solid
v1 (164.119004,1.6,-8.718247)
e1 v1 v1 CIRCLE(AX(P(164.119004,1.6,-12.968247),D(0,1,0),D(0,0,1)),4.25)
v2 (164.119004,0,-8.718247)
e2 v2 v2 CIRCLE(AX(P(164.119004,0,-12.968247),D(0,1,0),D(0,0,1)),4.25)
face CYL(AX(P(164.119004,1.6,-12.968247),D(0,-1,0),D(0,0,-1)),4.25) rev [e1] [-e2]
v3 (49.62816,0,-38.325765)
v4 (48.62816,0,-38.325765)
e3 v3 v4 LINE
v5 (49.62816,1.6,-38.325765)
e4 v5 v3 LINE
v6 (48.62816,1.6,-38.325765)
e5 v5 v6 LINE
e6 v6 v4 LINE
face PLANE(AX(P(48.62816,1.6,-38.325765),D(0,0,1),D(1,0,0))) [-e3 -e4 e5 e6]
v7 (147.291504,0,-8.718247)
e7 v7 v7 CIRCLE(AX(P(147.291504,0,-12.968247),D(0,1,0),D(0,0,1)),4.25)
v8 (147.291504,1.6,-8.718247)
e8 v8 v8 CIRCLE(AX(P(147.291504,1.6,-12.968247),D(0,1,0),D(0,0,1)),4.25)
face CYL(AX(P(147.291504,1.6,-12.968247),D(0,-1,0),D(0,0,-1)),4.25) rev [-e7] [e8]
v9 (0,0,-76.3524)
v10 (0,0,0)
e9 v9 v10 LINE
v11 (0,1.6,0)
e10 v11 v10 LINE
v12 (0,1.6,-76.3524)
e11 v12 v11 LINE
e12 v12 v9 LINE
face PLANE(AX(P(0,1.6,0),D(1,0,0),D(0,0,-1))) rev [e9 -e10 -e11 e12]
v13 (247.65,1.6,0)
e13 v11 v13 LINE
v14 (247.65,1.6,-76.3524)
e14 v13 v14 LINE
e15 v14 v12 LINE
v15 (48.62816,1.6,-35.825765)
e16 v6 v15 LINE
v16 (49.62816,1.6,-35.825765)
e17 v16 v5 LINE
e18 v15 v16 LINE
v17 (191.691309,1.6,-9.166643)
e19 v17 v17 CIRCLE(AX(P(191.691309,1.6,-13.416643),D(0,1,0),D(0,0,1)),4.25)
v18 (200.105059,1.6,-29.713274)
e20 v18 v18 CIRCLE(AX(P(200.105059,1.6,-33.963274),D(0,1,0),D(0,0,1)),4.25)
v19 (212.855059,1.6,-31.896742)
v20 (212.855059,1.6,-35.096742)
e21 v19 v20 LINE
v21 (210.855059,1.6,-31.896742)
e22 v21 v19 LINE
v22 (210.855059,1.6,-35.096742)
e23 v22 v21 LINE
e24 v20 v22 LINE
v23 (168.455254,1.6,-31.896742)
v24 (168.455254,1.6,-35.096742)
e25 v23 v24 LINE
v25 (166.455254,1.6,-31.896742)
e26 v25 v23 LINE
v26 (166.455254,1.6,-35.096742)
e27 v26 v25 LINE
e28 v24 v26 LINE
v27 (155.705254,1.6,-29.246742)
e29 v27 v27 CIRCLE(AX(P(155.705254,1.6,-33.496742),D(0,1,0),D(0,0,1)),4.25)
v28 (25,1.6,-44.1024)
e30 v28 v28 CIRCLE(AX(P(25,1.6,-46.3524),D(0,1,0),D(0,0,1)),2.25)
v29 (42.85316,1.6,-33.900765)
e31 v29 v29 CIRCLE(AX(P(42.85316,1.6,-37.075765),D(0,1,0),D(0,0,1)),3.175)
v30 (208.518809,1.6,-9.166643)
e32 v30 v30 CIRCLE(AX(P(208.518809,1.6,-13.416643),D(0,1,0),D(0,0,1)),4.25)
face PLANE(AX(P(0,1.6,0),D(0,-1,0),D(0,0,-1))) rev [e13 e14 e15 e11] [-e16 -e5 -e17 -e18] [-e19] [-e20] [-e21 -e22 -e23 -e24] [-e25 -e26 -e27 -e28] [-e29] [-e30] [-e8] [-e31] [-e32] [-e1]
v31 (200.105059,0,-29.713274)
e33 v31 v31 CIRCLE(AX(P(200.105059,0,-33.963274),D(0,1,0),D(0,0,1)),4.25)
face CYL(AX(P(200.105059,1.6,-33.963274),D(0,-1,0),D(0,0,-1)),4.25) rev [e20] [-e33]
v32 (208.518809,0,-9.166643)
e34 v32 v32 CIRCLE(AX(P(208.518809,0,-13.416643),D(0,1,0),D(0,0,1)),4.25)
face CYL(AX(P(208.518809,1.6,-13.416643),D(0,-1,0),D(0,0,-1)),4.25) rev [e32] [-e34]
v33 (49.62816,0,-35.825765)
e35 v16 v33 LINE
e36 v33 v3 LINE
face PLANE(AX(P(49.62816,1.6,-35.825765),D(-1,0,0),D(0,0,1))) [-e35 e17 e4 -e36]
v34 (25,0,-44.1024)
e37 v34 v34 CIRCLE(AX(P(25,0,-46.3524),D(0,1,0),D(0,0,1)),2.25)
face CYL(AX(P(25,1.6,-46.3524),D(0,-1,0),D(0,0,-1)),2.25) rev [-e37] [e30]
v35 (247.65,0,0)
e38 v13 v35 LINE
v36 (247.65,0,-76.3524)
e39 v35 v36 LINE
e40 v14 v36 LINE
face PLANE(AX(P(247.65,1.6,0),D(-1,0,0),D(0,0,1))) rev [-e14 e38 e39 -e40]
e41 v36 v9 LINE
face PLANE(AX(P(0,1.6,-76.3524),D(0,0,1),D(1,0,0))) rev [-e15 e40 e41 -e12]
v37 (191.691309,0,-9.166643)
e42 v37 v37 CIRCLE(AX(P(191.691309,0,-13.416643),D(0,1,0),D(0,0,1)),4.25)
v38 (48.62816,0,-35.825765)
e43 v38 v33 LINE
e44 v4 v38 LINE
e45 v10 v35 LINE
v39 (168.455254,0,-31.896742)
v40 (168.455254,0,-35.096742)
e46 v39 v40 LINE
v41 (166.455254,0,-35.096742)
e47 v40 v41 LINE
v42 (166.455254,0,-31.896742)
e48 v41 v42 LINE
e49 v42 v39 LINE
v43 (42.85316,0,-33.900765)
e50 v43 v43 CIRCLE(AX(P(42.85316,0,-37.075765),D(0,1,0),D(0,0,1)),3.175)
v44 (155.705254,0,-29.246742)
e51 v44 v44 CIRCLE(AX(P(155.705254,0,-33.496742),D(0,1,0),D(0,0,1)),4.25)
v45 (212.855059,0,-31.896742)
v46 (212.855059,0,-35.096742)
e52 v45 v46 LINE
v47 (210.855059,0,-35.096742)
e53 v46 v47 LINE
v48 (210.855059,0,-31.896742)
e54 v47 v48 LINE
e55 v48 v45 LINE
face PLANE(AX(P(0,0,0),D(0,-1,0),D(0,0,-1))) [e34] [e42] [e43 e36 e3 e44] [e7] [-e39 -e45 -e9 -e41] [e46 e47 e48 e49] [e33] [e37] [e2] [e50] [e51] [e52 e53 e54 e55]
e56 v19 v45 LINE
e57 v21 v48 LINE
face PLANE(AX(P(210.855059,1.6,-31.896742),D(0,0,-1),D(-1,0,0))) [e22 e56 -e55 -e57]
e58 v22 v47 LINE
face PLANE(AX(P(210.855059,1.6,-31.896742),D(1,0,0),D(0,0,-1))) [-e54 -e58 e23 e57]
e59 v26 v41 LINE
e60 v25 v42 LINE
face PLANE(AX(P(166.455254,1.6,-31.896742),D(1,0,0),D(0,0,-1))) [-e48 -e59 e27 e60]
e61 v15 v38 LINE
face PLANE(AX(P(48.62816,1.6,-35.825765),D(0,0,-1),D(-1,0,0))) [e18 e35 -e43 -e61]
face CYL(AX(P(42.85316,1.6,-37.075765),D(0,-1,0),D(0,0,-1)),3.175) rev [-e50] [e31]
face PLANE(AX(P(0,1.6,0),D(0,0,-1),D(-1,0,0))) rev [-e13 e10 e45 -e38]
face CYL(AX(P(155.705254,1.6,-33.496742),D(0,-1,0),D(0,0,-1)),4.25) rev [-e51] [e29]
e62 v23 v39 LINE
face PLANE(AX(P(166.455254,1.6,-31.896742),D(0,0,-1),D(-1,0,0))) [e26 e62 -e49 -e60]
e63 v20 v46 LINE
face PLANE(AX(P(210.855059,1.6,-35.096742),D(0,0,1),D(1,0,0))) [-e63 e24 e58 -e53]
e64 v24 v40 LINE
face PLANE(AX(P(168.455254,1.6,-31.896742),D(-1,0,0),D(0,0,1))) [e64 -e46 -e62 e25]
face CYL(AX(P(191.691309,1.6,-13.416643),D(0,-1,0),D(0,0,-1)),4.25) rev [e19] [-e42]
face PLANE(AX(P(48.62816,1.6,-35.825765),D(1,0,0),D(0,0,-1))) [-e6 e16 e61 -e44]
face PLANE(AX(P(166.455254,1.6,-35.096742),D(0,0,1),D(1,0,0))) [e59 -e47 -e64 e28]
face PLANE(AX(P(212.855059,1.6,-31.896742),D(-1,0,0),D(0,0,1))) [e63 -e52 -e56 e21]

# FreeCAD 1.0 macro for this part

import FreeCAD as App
import Part
import Sketcher
from FreeCAD import Vector

doc = App.newDocument("Part")
body = doc.addObject("PartDesign::Body", "Body")

sketch1 = body.newObject("Sketcher::SketchObject", "Sketch")
sketch1.AttachmentSupport = (doc.getObject("XZ_Plane"), [""])
sketch1.MapMode = "FlatFace"
sketch1.addGeometry(Part.LineSegment(Vector(0, -76.4, 0), Vector(0, 0, 0)), False)
sketch1.addGeometry(Part.LineSegment(Vector(0, 0, 0), Vector(247.7, 0, 0)), False)
sketch1.addGeometry(Part.LineSegment(Vector(247.7, 0, 0), Vector(247.7, -76.4, 0)), False)
sketch1.addGeometry(Part.LineSegment(Vector(247.7, -76.4, 0), Vector(0, -76.4, 0)), False)
sketch1.addGeometry(Part.Circle(Vector(147.3, -13, 0), Vector(0, 0, 1), 4.2), False)
sketch1.addGeometry(Part.Circle(Vector(164.1, -13, 0), Vector(0, 0, 1), 4.2), False)
sketch1.addGeometry(Part.Circle(Vector(191.7, -13.4, 0), Vector(0, 0, 1), 4.2), False)
sketch1.addGeometry(Part.Circle(Vector(208.5, -13.4, 0), Vector(0, 0, 1), 4.2), False)
sketch1.addGeometry(Part.Circle(Vector(42.9, -37.1, 0), Vector(0, 0, 1), 3.2), False)
sketch1.addGeometry(Part.LineSegment(Vector(49.6, -35.8, 0), Vector(48.6, -35.8, 0)), False)
sketch1.addGeometry(Part.LineSegment(Vector(48.6, -35.8, 0), Vector(48.6, -38.3, 0)), False)
sketch1.addGeometry(Part.LineSegment(Vector(48.6, -38.3, 0), Vector(49.6, -38.3, 0)), False)
sketch1.addGeometry(Part.LineSegment(Vector(49.6, -38.3, 0), Vector(49.6, -35.8, 0)), False)
sketch1.addGeometry(Part.Circle(Vector(25, -46.4, 0), Vector(0, 0, 1), 2.2), False)
sketch1.addGeometry(Part.Circle(Vector(155.7, -33.5, 0), Vector(0, 0, 1), 4.2), False)
sketch1.addGeometry(Part.LineSegment(Vector(168.5, -31.9, 0), Vector(166.5, -31.9, 0)), False)
sketch1.addGeometry(Part.LineSegment(Vector(166.5, -31.9, 0), Vector(166.5, -35.1, 0)), False)
sketch1.addGeometry(Part.LineSegment(Vector(166.5, -35.1, 0), Vector(168.5, -35.1, 0)), False)
sketch1.addGeometry(Part.LineSegment(Vector(168.5, -35.1, 0), Vector(168.5, -31.9, 0)), False)
sketch1.addGeometry(Part.LineSegment(Vector(212.9, -31.9, 0), Vector(210.9, -31.9, 0)), False)
sketch1.addGeometry(Part.LineSegment(Vector(210.9, -31.9, 0), Vector(210.9, -35.1, 0)), False)
sketch1.addGeometry(Part.LineSegment(Vector(210.9, -35.1, 0), Vector(212.9, -35.1, 0)), False)
sketch1.addGeometry(Part.LineSegment(Vector(212.9, -35.1, 0), Vector(212.9, -31.9, 0)), False)
sketch1.addGeometry(Part.Circle(Vector(200.1, -34, 0), Vector(0, 0, 1), 4.2), False)
sketch1.addConstraint(Sketcher.Constraint("Coincident", 0, 2, 1, 1))
sketch1.addConstraint(Sketcher.Constraint("Coincident", 1, 2, 2, 1))
sketch1.addConstraint(Sketcher.Constraint("Coincident", 2, 2, 3, 1))
sketch1.addConstraint(Sketcher.Constraint("Coincident", 3, 2, 0, 1))
sketch1.addConstraint(Sketcher.Constraint("Coincident", 9, 2, 10, 1))
sketch1.addConstraint(Sketcher.Constraint("Coincident", 10, 2, 11, 1))
sketch1.addConstraint(Sketcher.Constraint("Coincident", 11, 2, 12, 1))
sketch1.addConstraint(Sketcher.Constraint("Coincident", 12, 2, 9, 1))
sketch1.addConstraint(Sketcher.Constraint("Coincident", 15, 2, 16, 1))
sketch1.addConstraint(Sketcher.Constraint("Coincident", 16, 2, 17, 1))
sketch1.addConstraint(Sketcher.Constraint("Coincident", 17, 2, 18, 1))
sketch1.addConstraint(Sketcher.Constraint("Coincident", 18, 2, 15, 1))
sketch1.addConstraint(Sketcher.Constraint("Coincident", 19, 2, 20, 1))
sketch1.addConstraint(Sketcher.Constraint("Coincident", 20, 2, 21, 1))
sketch1.addConstraint(Sketcher.Constraint("Coincident", 21, 2, 22, 1))
sketch1.addConstraint(Sketcher.Constraint("Coincident", 22, 2, 19, 1))
sketch1.addConstraint(Sketcher.Constraint("Vertical", 0))
sketch1.addConstraint(Sketcher.Constraint("Horizontal", 1))
sketch1.addConstraint(Sketcher.Constraint("Vertical", 2))
sketch1.addConstraint(Sketcher.Constraint("Horizontal", 3))
sketch1.addConstraint(Sketcher.Constraint("Horizontal", 9))
sketch1.addConstraint(Sketcher.Constraint("Vertical", 10))
sketch1.addConstraint(Sketcher.Constraint("Horizontal", 11))
sketch1.addConstraint(Sketcher.Constraint("Vertical", 12))
sketch1.addConstraint(Sketcher.Constraint("Horizontal", 15))
sketch1.addConstraint(Sketcher.Constraint("Vertical", 16))
sketch1.addConstraint(Sketcher.Constraint("Horizontal", 17))
sketch1.addConstraint(Sketcher.Constraint("Vertical", 18))
sketch1.addConstraint(Sketcher.Constraint("Horizontal", 19))
sketch1.addConstraint(Sketcher.Constraint("Vertical", 20))
sketch1.addConstraint(Sketcher.Constraint("Horizontal", 21))
sketch1.addConstraint(Sketcher.Constraint("Vertical", 22))
sketch1.addConstraint(Sketcher.Constraint("Coincident", 0, 2, -1, 1))
sketch1.addConstraint(Sketcher.Constraint("Equal", 4, 5))
sketch1.addConstraint(Sketcher.Constraint("Equal", 5, 6))
sketch1.addConstraint(Sketcher.Constraint("Equal", 6, 7))
sketch1.addConstraint(Sketcher.Constraint("Equal", 7, 14))
sketch1.addConstraint(Sketcher.Constraint("Equal", 14, 23))
sketch1.addConstraint(Sketcher.Constraint("Horizontal", 4, 3, 5, 3))
sketch1.addConstraint(Sketcher.Constraint("Horizontal", 6, 3, 7, 3))
sketch1.addConstraint(Sketcher.Constraint("Horizontal", 18, 2, 19, 2))
sketch1.addConstraint(Sketcher.Constraint("Horizontal", 17, 2, 20, 2))
sketch1.addConstraint(Sketcher.Constraint("Equal", 17, 19))
sketch1.addConstraint(Sketcher.Constraint("Diameter", 4, 8.5))
sketch1.addConstraint(Sketcher.Constraint("Diameter", 13, 4.5))
sketch1.addConstraint(Sketcher.Constraint("Diameter", 8, 6.35))
sketch1.addConstraint(Sketcher.Constraint("DistanceX", 9, 2, 9, 1, 1.0))
sketch1.addConstraint(Sketcher.Constraint("DistanceX", 15, 2, 15, 1, 2.0))
sketch1.addConstraint(Sketcher.Constraint("DistanceY", 10, 2, 10, 1, 2.5))
sketch1.addConstraint(Sketcher.Constraint("DistanceY", 16, 2, 16, 1, 3.2))
sketch1.addConstraint(Sketcher.Constraint("DistanceX", -1, 1, 13, 3, 25.0))
sketch1.addConstraint(Sketcher.Constraint("DistanceY", 3, 2, 13, 3, 30.0))
sketch1.addConstraint(Sketcher.Constraint("DistanceX", 1, 1, 1, 2, 247.65))
sketch1.addConstraint(Sketcher.Constraint("DistanceY", 14, 3, 15, 2, 1.6))
sketch1.addConstraint(Sketcher.Constraint("DistanceY", 8, 3, 9, 2, 1.25))
sketch1.addConstraint(Sketcher.Constraint("DistanceX", 14, 3, 15, 2, 10.75))
sketch1.addConstraint(Sketcher.Constraint("DistanceX", 23, 3, 19, 2, 10.75))
sketch1.addConstraint(Sketcher.Constraint("DistanceY", 0, 1, 0, 2, 76.3524))
sketch1.addConstraint(Sketcher.Constraint("DistanceX", 8, 3, 9, 2, 5.775))
sketch1.addConstraint(Sketcher.Constraint("DistanceX", 4, 3, 5, 3, 16.8275))
sketch1.addConstraint(Sketcher.Constraint("DistanceX", 6, 3, 7, 3, 16.8275))
sketch1.addConstraint(Sketcher.Constraint("DistanceY", 14, 3, 6, 3, 20.080099))
sketch1.addConstraint(Sketcher.Constraint("DistanceX", -1, 1, 6, 3, 191.691309))
sketch1.addConstraint(Sketcher.Constraint("DistanceX", -1, 1, 8, 3, 42.85316))
sketch1.addConstraint(Sketcher.Constraint("DistanceY", 14, 3, -1, 1, 33.496742))
sketch1.addConstraint(Sketcher.Constraint("DistanceX", -1, 1, 23, 3, 200.105059))
sketch1.addConstraint(Sketcher.Constraint("DistanceY", 8, 3, 6, 3, 23.659122))
sketch1.addConstraint(Sketcher.Constraint("DistanceX", 4, 3, 14, 3, 8.41375))
sketch1.addConstraint(Sketcher.Constraint("DistanceY", 23, 3, 6, 3, 20.546631))
sketch1.addConstraint(Sketcher.Constraint("DistanceX", -1, 1, 4, 3, 147.291504))
sketch1.addConstraint(Sketcher.Constraint("DistanceY", 4, 3, -1, 1, 12.968247))
pad1 = body.newObject("PartDesign::Pad", "Pad")
pad1.Profile = sketch1
pad1.Length = 1.6
pad1.Reversed = True

doc.recompute()
